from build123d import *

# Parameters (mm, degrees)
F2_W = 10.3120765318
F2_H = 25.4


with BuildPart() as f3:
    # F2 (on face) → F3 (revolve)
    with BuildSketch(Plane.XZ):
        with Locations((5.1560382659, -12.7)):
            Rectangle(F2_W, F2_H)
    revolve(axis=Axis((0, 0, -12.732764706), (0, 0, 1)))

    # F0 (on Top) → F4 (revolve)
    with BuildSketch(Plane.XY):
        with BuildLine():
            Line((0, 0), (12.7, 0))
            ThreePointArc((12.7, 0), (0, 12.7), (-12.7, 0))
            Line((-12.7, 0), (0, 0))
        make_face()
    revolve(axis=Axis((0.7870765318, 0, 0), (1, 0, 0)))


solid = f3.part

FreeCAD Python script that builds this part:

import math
import FreeCAD as App
import Part
import Sketcher

V = App.Vector
Q = App.Units.Quantity


def add_polygon(sketch, points):
    """Adds a closed chain of lines whose ends are joined by coincident constraints."""
    first, n = sketch.GeometryCount, len(points)
    for a, b in zip(points, points[1:] + points[:1]):
        sketch.addGeometry(Part.LineSegment(App.Vector(*a, 0), App.Vector(*b, 0)), False)
    for i in range(n):
        sketch.addConstraint(Sketcher.Constraint("Coincident", first + i, 2, first + (i + 1) % n, 1))

doc = App.newDocument("Part")
body = doc.addObject("PartDesign::Body", "Body")

sketch1 = doc.addObject("Sketcher::SketchObject", "Sketch")
body.addObject(sketch1)
sketch1.AttachmentSupport = (doc.XZ_Plane, [""])
sketch1.MapMode = "FlatFace"
add_polygon(sketch1, [(0, 0), (0, -25.4), (10.312077, -25.4), (10.312077, 0)])
sketch1.addConstraint(Sketcher.Constraint("Vertical", 0))
sketch1.addConstraint(Sketcher.Constraint("Horizontal", 1))
sketch1.addConstraint(Sketcher.Constraint("Vertical", 2))
sketch1.addConstraint(Sketcher.Constraint("Horizontal", 3))
sketch1.addConstraint(Sketcher.Constraint("Coincident", 3, 2, -1, 1))
sketch1.addConstraint(Sketcher.Constraint("DistanceY", 0, 2, 0, 1, Q("1 in")))
sketch1.addConstraint(Sketcher.Constraint("DistanceX", 1, 1, 1, 2, Q("10.312077 mm")))
revolution = doc.addObject("PartDesign::Revolution", "Revolution")
body.addObject(revolution)
revolution.Profile = sketch1
revolution.ReferenceAxis = (sketch1, ["V_Axis"])
revolution.Angle = 360

sketch2 = doc.addObject("Sketcher::SketchObject", "Sketch001")
body.addObject(sketch2)
sketch2.AttachmentSupport = (doc.XY_Plane, [""])
sketch2.MapMode = "FlatFace"
sketch2.addGeometry(Part.ArcOfCircle(Part.Circle(V(0, 0, 0), V(0, 0, 1), 12.7), math.radians(0), math.radians(180)), False)
sketch2.addGeometry(Part.LineSegment(V(-12.7, 0, 0), V(12.7, 0, 0)), False)
sketch2.addConstraint(Sketcher.Constraint("Coincident", 0, 1, 1, 2))
sketch2.addConstraint(Sketcher.Constraint("Coincident", 1, 1, 0, 2))
sketch2.addConstraint(Sketcher.Constraint("Horizontal", 1))
sketch2.addConstraint(Sketcher.Constraint("Coincident", 0, 3, -1, 1))
sketch2.addConstraint(Sketcher.Constraint("PointOnObject", 0, 1, -1))
sketch2.addConstraint(Sketcher.Constraint("Radius", 0, Q("0.5 in")))
revolution2 = doc.addObject("PartDesign::Revolution", "Revolution001")
body.addObject(revolution2)
revolution2.Profile = sketch2
revolution2.ReferenceAxis = (sketch2, ["H_Axis"])
revolution2.Angle = 360

doc.recompute()
